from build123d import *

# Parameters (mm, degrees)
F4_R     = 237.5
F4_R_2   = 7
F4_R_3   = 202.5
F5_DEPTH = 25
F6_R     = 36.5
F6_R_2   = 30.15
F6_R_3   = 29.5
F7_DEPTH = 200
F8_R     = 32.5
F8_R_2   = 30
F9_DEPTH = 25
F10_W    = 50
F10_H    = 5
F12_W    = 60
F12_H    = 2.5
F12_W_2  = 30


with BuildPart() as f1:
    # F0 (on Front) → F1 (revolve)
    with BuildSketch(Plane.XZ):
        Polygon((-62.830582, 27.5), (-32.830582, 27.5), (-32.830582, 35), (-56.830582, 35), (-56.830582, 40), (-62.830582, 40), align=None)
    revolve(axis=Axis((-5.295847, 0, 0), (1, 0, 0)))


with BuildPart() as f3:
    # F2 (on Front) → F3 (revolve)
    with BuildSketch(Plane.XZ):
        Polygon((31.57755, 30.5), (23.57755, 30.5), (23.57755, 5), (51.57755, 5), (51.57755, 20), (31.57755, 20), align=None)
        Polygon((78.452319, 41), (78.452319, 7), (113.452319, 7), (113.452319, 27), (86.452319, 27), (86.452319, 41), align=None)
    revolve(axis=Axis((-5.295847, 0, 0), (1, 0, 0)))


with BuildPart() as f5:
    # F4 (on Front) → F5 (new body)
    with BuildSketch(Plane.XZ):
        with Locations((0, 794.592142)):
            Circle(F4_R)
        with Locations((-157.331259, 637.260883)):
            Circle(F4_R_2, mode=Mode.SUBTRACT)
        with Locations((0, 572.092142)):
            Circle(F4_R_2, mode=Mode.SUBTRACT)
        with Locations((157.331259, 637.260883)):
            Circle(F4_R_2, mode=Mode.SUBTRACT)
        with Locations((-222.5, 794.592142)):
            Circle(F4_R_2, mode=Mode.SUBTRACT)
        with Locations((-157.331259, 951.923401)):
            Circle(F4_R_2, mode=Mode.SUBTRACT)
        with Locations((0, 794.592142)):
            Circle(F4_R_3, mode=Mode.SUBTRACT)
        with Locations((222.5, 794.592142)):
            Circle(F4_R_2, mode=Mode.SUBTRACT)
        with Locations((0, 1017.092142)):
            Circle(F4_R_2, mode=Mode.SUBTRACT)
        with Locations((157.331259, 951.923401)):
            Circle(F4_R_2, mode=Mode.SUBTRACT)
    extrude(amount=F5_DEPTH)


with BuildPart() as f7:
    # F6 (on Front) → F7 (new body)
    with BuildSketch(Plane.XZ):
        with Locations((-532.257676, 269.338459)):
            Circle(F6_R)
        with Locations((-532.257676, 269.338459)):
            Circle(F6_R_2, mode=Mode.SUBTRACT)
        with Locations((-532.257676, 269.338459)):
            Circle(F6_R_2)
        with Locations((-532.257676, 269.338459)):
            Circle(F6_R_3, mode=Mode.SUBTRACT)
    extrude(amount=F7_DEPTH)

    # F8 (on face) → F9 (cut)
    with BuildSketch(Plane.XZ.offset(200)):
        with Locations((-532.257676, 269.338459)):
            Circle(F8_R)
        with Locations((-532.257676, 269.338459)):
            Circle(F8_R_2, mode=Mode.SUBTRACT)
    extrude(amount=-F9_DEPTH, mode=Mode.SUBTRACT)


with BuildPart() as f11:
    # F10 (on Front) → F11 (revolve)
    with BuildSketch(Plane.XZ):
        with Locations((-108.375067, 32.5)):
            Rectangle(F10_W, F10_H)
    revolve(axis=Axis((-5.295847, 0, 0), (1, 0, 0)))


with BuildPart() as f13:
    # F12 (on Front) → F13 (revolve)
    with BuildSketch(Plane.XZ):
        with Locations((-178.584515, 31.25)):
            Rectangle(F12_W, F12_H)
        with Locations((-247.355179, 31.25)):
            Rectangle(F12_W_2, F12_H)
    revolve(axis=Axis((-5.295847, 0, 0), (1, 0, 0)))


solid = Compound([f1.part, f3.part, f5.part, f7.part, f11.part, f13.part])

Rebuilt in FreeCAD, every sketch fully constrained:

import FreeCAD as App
import Part
import Sketcher
Q = App.Units.Quantity

doc = App.newDocument("Part")
body = doc.addObject("PartDesign::Body", "Body")

sketch1 = body.newObject("Sketcher::SketchObject", "Sketch")
sketch1.AttachmentSupport = (doc.getObject("XZ_Plane"), [""])
sketch1.MapMode = "FlatFace"
sketch1.addGeometry([
    Part.LineSegment(App.Vector(-63, 28, 0), App.Vector(-33, 28, 0)),
    Part.LineSegment(App.Vector(-33, 28, 0), App.Vector(-33, 35, 0)),
    Part.LineSegment(App.Vector(-33, 35, 0), App.Vector(-57, 35, 0)),
    Part.LineSegment(App.Vector(-57, 35, 0), App.Vector(-57, 40, 0)),
    Part.LineSegment(App.Vector(-57, 40, 0), App.Vector(-63, 40, 0)),
    Part.LineSegment(App.Vector(-63, 40, 0), App.Vector(-63, 28, 0)),
], False)
sketch1.addConstraint([
    Sketcher.Constraint("Coincident", 0, 2, 1, 1),
    Sketcher.Constraint("Coincident", 1, 2, 2, 1),
    Sketcher.Constraint("Coincident", 2, 2, 3, 1),
    Sketcher.Constraint("Coincident", 3, 2, 4, 1),
    Sketcher.Constraint("Coincident", 4, 2, 5, 1),
    Sketcher.Constraint("Coincident", 5, 2, 0, 1),
    Sketcher.Constraint("Horizontal", 0),
    Sketcher.Constraint("Vertical", 1),
    Sketcher.Constraint("Horizontal", 2),
    Sketcher.Constraint("Vertical", 3),
    Sketcher.Constraint("Horizontal", 4),
    Sketcher.Constraint("Vertical", 5),
    Sketcher.Constraint("DistanceX", 0, 1, 0, 2, Q("30 mm")),
    Sketcher.Constraint("DistanceX", 2, 2, 2, 1, Q("24 mm")),
    Sketcher.Constraint("DistanceY", 3, 1, 3, 2, Q("5 mm")),
    Sketcher.Constraint("DistanceY", 1, 1, 1, 2, Q("7.5 mm")),
    Sketcher.Constraint("DistanceY", -1, 1, 1, 2, Q("35 mm")),
    Sketcher.Constraint("DistanceX", 0, 2, -1, 1, Q("32.830582 mm")),
])
revolution = body.newObject("PartDesign::Revolution", "Revolution")
revolution.Profile = sketch1
revolution.ReferenceAxis = (sketch1, ["H_Axis"])
revolution.Angle = 360
body2 = doc.addObject("PartDesign::Body", "Body001")
body2.AllowCompound = True

sketch2 = body2.newObject("Sketcher::SketchObject", "Sketch001")
sketch2.AttachmentSupport = (doc.getObject("XZ_Plane001"), [""])
sketch2.MapMode = "FlatFace"
sketch2.addGeometry([
    Part.LineSegment(App.Vector(32, 30, 0), App.Vector(24, 30, 0)),
    Part.LineSegment(App.Vector(24, 30, 0), App.Vector(24, 5, 0)),
    Part.LineSegment(App.Vector(24, 5, 0), App.Vector(52, 5, 0)),
    Part.LineSegment(App.Vector(52, 5, 0), App.Vector(52, 20, 0)),
    Part.LineSegment(App.Vector(52, 20, 0), App.Vector(32, 20, 0)),
    Part.LineSegment(App.Vector(32, 20, 0), App.Vector(32, 30, 0)),
    Part.LineSegment(App.Vector(78, 41, 0), App.Vector(78, 7, 0)),
    Part.LineSegment(App.Vector(78, 7, 0), App.Vector(113, 7, 0)),
    Part.LineSegment(App.Vector(113, 7, 0), App.Vector(113, 27, 0)),
    Part.LineSegment(App.Vector(113, 27, 0), App.Vector(86, 27, 0)),
    Part.LineSegment(App.Vector(86, 27, 0), App.Vector(86, 41, 0)),
    Part.LineSegment(App.Vector(86, 41, 0), App.Vector(78, 41, 0)),
], False)
sketch2.addConstraint([
    Sketcher.Constraint("Coincident", 0, 2, 1, 1),
    Sketcher.Constraint("Coincident", 1, 2, 2, 1),
    Sketcher.Constraint("Coincident", 2, 2, 3, 1),
    Sketcher.Constraint("Coincident", 3, 2, 4, 1),
    Sketcher.Constraint("Coincident", 4, 2, 5, 1),
    Sketcher.Constraint("Coincident", 5, 2, 0, 1),
    Sketcher.Constraint("Coincident", 6, 2, 7, 1),
    Sketcher.Constraint("Coincident", 7, 2, 8, 1),
    Sketcher.Constraint("Coincident", 8, 2, 9, 1),
    Sketcher.Constraint("Coincident", 9, 2, 10, 1),
    Sketcher.Constraint("Coincident", 10, 2, 11, 1),
    Sketcher.Constraint("Coincident", 11, 2, 6, 1),
    Sketcher.Constraint("Horizontal", 0),
    Sketcher.Constraint("Vertical", 1),
    Sketcher.Constraint("Horizontal", 2),
    Sketcher.Constraint("Vertical", 3),
    Sketcher.Constraint("Horizontal", 4),
    Sketcher.Constraint("Vertical", 5),
    Sketcher.Constraint("Vertical", 6),
    Sketcher.Constraint("Horizontal", 7),
    Sketcher.Constraint("Vertical", 8),
    Sketcher.Constraint("Horizontal", 9),
    Sketcher.Constraint("Vertical", 10),
    Sketcher.Constraint("Horizontal", 11),
    Sketcher.Constraint("Equal", 0, 11),
    Sketcher.Constraint("Equal", 4, 8),
    Sketcher.Constraint("DistanceX", 0, 2, 0, 1, Q("8 mm")),
    Sketcher.Constraint("DistanceX", 2, 1, 2, 2, Q("28 mm")),
    Sketcher.Constraint("DistanceX", 7, 1, 7, 2, Q("35 mm")),
    Sketcher.Constraint("DistanceY", 3, 1, 3, 2, Q("15 mm")),
    Sketcher.Constraint("DistanceY", 6, 2, 6, 1, Q("34 mm")),
    Sketcher.Constraint("DistanceY", 1, 2, 1, 1, Q("25.5 mm")),
    Sketcher.Constraint("DistanceY", -1, 1, 1, 2, Q("5 mm")),
    Sketcher.Constraint("DistanceY", -1, 1, 6, 2, Q("7 mm")),
    Sketcher.Constraint("DistanceX", -1, 1, 0, 2, Q("23.57755 mm")),
    Sketcher.Constraint("DistanceX", -1, 1, 6, 2, Q("78.452319 mm")),
])
revolution2 = body2.newObject("PartDesign::Revolution", "Revolution001")
revolution2.Profile = sketch2
revolution2.ReferenceAxis = (sketch2, ["H_Axis"])
revolution2.Angle = 360
body3 = doc.addObject("PartDesign::Body", "Body002")

sketch3 = body3.newObject("Sketcher::SketchObject", "Sketch002")
sketch3.AttachmentSupport = (doc.getObject("XZ_Plane002"), [""])
sketch3.MapMode = "FlatFace"
sketch3.addGeometry([
    Part.Circle(App.Vector(0, 795, 0), App.Vector(0, 0, 1), 238),
    Part.Circle(App.Vector(-157, 637, 0), App.Vector(0, 0, 1), 7),
    Part.Circle(App.Vector(0, 572, 0), App.Vector(0, 0, 1), 7),
    Part.Circle(App.Vector(157, 637, 0), App.Vector(0, 0, 1), 7),
    Part.Circle(App.Vector(-222, 795, 0), App.Vector(0, 0, 1), 7),
    Part.Circle(App.Vector(-157, 952, 0), App.Vector(0, 0, 1), 7),
    Part.Circle(App.Vector(0, 795, 0), App.Vector(0, 0, 1), 202),
    Part.Circle(App.Vector(222, 795, 0), App.Vector(0, 0, 1), 7),
    Part.Circle(App.Vector(0, 1017, 0), App.Vector(0, 0, 1), 7),
    Part.Circle(App.Vector(157, 952, 0), App.Vector(0, 0, 1), 7),
], False)
sketch3.addConstraint([
    Sketcher.Constraint("Coincident", 6, 3, 0, 3),
    Sketcher.Constraint("Equal", 1, 2),
    Sketcher.Constraint("Equal", 2, 3),
    Sketcher.Constraint("Equal", 3, 4),
    Sketcher.Constraint("Equal", 4, 5),
    Sketcher.Constraint("Equal", 5, 7),
    Sketcher.Constraint("Equal", 7, 8),
    Sketcher.Constraint("Equal", 8, 9),
    Sketcher.Constraint("Symmetric", 1, 3, 3, 3, -2),
    Sketcher.Constraint("Symmetric", 4, 3, 7, 3, -2),
    Sketcher.Constraint("Symmetric", 5, 3, 9, 3, -2),
    Sketcher.Constraint("PointOnObject", 0, 3, -2),
    Sketcher.Constraint("PointOnObject", 2, 3, -2),
    Sketcher.Constraint("PointOnObject", 8, 3, -2),
    Sketcher.Constraint("Horizontal", 0, 3, 4, 3),
    Sketcher.Constraint("Vertical", 1, 3, 5, 3),
    Sketcher.Constraint("Diameter", 0, Q("475 mm")),
    Sketcher.Constraint("Diameter", 1, Q("14 mm")),
    Sketcher.Constraint("Diameter", 6, Q("405 mm")),
    Sketcher.Constraint("DistanceX", 4, 3, -1, 1, Q("222.5 mm")),
    Sketcher.Constraint("DistanceY", 2, 3, 0, 3, Q("222.5 mm")),
    Sketcher.Constraint("DistanceY", 0, 3, 8, 3, Q("222.5 mm")),
    Sketcher.Constraint("DistanceY", -1, 1, 5, 3, Q("951.923401 mm")),
    Sketcher.Constraint("DistanceY", -1, 1, 0, 3, Q("794.592142 mm")),
    Sketcher.Constraint("DistanceX", 1, 3, -1, 1, Q("157.331259 mm")),
    Sketcher.Constraint("DistanceY", 1, 3, 0, 3, Q("157.331259 mm")),
])
pad1 = body3.newObject("PartDesign::Pad", "Pad")
pad1.Profile = sketch3
pad1.Length = 25
body4 = doc.addObject("PartDesign::Body", "Body003")

sketch4 = body4.newObject("Sketcher::SketchObject", "Sketch003")
sketch4.AttachmentSupport = (doc.getObject("XZ_Plane003"), [""])
sketch4.MapMode = "FlatFace"
sketch4.addGeometry([
    Part.Circle(App.Vector(-532, 269, 0), App.Vector(0, 0, 1), 36),
    Part.Circle(App.Vector(-532, 269, 0), App.Vector(0, 0, 1), 30),
], False)
sketch4.addConstraint([
    Sketcher.Constraint("Coincident", 1, 3, 0, 3),
    Sketcher.Constraint("Diameter", 0, Q("73 mm")),
    Sketcher.Constraint("Diameter", 1, Q("59 mm")),
    Sketcher.Constraint("DistanceY", -1, 1, 0, 3, Q("269.338459 mm")),
    Sketcher.Constraint("DistanceX", 0, 3, -1, 1, Q("532.257676 mm")),
])
pad2 = body4.newObject("PartDesign::Pad", "Pad001")
pad2.Profile = sketch4
pad2.Length = 200

sketch5 = body4.newObject("Sketcher::SketchObject", "Sketch004")
sketch5.AttachmentSupport = (doc.getObject("XZ_Plane003"), [""])
sketch5.MapMode = "FlatFace"
sketch5.AttachmentOffset = App.Placement(App.Vector(0, 0, 200), App.Rotation())
sketch5.addGeometry([
    Part.Circle(App.Vector(-532, 269, 0), App.Vector(0, 0, 1), 32),
    Part.Circle(App.Vector(-532, 269, 0), App.Vector(0, 0, 1), 30),
], False)
sketch5.addConstraint([
    Sketcher.Constraint("Coincident", 1, 3, 0, 3),
    Sketcher.Constraint("Diameter", 0, Q("65 mm")),
    Sketcher.Constraint("Diameter", 1, Q("60 mm")),
    Sketcher.Constraint("DistanceY", -1, 1, 0, 3, Q("269.338459 mm")),
    Sketcher.Constraint("DistanceX", 0, 3, -1, 1, Q("532.257676 mm")),
])
pocket1 = body4.newObject("PartDesign::Pocket", "Pocket")
pocket1.Profile = sketch5
pocket1.Length = 25
body5 = doc.addObject("PartDesign::Body", "Body004")

sketch6 = body5.newObject("Sketcher::SketchObject", "Sketch005")
sketch6.AttachmentSupport = (doc.getObject("XZ_Plane004"), [""])
sketch6.MapMode = "FlatFace"
sketch6.addGeometry([
    Part.LineSegment(App.Vector(-133, 35, 0), App.Vector(-133, 30, 0)),
    Part.LineSegment(App.Vector(-133, 30, 0), App.Vector(-83, 30, 0)),
    Part.LineSegment(App.Vector(-83, 30, 0), App.Vector(-83, 35, 0)),
    Part.LineSegment(App.Vector(-83, 35, 0), App.Vector(-133, 35, 0)),
], False)
sketch6.addConstraint([
    Sketcher.Constraint("Coincident", 0, 2, 1, 1),
    Sketcher.Constraint("Coincident", 1, 2, 2, 1),
    Sketcher.Constraint("Coincident", 2, 2, 3, 1),
    Sketcher.Constraint("Coincident", 3, 2, 0, 1),
    Sketcher.Constraint("Vertical", 0),
    Sketcher.Constraint("Horizontal", 1),
    Sketcher.Constraint("Vertical", 2),
    Sketcher.Constraint("Horizontal", 3),
    Sketcher.Constraint("DistanceX", 1, 1, 1, 2, Q("50 mm")),
    Sketcher.Constraint("DistanceY", 0, 2, 0, 1, Q("5 mm")),
    Sketcher.Constraint("DistanceY", -1, 1, 0, 2, Q("30 mm")),
    Sketcher.Constraint("DistanceX", 0, 2, -1, 1, Q("133.375067 mm")),
])
revolution3 = body5.newObject("PartDesign::Revolution", "Revolution002")
revolution3.Profile = sketch6
revolution3.ReferenceAxis = (sketch6, ["H_Axis"])
revolution3.Angle = 360
body6 = doc.addObject("PartDesign::Body", "Body005")
body6.AllowCompound = True

sketch7 = body6.newObject("Sketcher::SketchObject", "Sketch006")
sketch7.AttachmentSupport = (doc.getObject("XZ_Plane005"), [""])
sketch7.MapMode = "FlatFace"
sketch7.addGeometry([
    Part.LineSegment(App.Vector(-208.6, 32.5, 0), App.Vector(-208.6, 30, 0)),
    Part.LineSegment(App.Vector(-208.6, 30, 0), App.Vector(-148.6, 30, 0)),
    Part.LineSegment(App.Vector(-148.6, 30, 0), App.Vector(-148.6, 32.5, 0)),
    Part.LineSegment(App.Vector(-148.6, 32.5, 0), App.Vector(-208.6, 32.5, 0)),
    Part.LineSegment(App.Vector(-262.4, 32.5, 0), App.Vector(-262.4, 30, 0)),
    Part.LineSegment(App.Vector(-262.4, 30, 0), App.Vector(-232.4, 30, 0)),
    Part.LineSegment(App.Vector(-232.4, 30, 0), App.Vector(-232.4, 32.5, 0)),
    Part.LineSegment(App.Vector(-232.4, 32.5, 0), App.Vector(-262.4, 32.5, 0)),
], False)
sketch7.addConstraint([
    Sketcher.Constraint("Coincident", 0, 2, 1, 1),
    Sketcher.Constraint("Coincident", 1, 2, 2, 1),
    Sketcher.Constraint("Coincident", 2, 2, 3, 1),
    Sketcher.Constraint("Coincident", 3, 2, 0, 1),
    Sketcher.Constraint("Coincident", 4, 2, 5, 1),
    Sketcher.Constraint("Coincident", 5, 2, 6, 1),
    Sketcher.Constraint("Coincident", 6, 2, 7, 1),
    Sketcher.Constraint("Coincident", 7, 2, 4, 1),
    Sketcher.Constraint("Vertical", 0),
    Sketcher.Constraint("Horizontal", 1),
    Sketcher.Constraint("Vertical", 2),
    Sketcher.Constraint("Horizontal", 3),
    Sketcher.Constraint("Vertical", 4),
    Sketcher.Constraint("Horizontal", 5),
    Sketcher.Constraint("Vertical", 6),
    Sketcher.Constraint("Horizontal", 7),
    Sketcher.Constraint("Horizontal", 1, 2, 4, 2),
    Sketcher.Constraint("Horizontal", 3, 2, 6, 2),
    Sketcher.Constraint("DistanceX", 1, 1, 1, 2, Q("60 mm")),
    Sketcher.Constraint("DistanceX", 5, 1, 5, 2, Q("30 mm")),
    Sketcher.Constraint("DistanceY", 0, 2, 0, 1, Q("2.5 mm")),
    Sketcher.Constraint("DistanceY", -1, 1, 0, 2, Q("30 mm")),
    Sketcher.Constraint("DistanceX", 4, 2, -1, 1, Q("262.355179 mm")),
    Sketcher.Constraint("DistanceX", 0, 2, -1, 1, Q("208.584515 mm")),
])
revolution4 = body6.newObject("PartDesign::Revolution", "Revolution003")
revolution4.Profile = sketch7
revolution4.ReferenceAxis = (sketch7, ["H_Axis"])
revolution4.Angle = 360

doc.recompute()
